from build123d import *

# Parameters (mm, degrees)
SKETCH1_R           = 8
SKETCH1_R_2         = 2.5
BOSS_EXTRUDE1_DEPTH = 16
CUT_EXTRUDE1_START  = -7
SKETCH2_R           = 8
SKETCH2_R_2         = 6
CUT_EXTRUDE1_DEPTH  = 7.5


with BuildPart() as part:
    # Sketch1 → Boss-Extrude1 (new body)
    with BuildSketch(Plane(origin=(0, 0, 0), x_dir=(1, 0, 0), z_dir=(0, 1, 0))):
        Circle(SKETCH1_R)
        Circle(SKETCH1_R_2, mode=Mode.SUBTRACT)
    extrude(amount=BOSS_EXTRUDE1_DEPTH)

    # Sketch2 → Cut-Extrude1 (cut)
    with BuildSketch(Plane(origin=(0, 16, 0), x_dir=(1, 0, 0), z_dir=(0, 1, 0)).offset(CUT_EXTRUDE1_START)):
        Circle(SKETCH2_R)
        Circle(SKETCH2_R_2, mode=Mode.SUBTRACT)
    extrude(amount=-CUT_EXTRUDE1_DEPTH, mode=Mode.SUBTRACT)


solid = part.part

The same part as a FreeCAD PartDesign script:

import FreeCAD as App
import Part
import Sketcher
from FreeCAD import Vector
Q = App.Units.Quantity

doc = App.newDocument("Part")
params = doc.addObject("Spreadsheet::Sheet", "Params")
for row, (alias, value) in enumerate([
    ("sketch1_diameter", "16 mm"),
    ("sketch1_diameter2", "5 mm"),
    ("pad1_length", "16 mm"),
    ("sketch2_diameter", "16 mm"),
    ("sketch2_diameter2", "12 mm"),
    ("pocket1_length", "7.5 mm"),
], start=1):
    params.set(f"A{row}", alias)
    params.set(f"B{row}", "=" + value)
    params.setAlias(f"B{row}", alias)

body = doc.addObject("PartDesign::Body", "Body")

# Sketch on XZ plane
sketch1 = body.newObject("Sketcher::SketchObject", "Sketch")
sketch1.AttachmentSupport = (doc.getObject("XZ_Plane"), [""])
sketch1.MapMode = "FlatFace"
sketch1.addGeometry(Part.Circle(Vector(0, 0, 0), Vector(0, 0, 1), 8), False)
sketch1.addGeometry(Part.Circle(Vector(0, 0, 0), Vector(0, 0, 1), 2.5), False)
sketch1.addConstraint(Sketcher.Constraint("Coincident", 0, 3, -1, 1))
sketch1.addConstraint(Sketcher.Constraint("Coincident", 1, 3, -1, 1))
sketch1.addConstraint(Sketcher.Constraint("Diameter", 0, Q("16 mm")))
sketch1.addConstraint(Sketcher.Constraint("Diameter", 1, Q("5 mm")))
sketch1.setExpression("Constraints[2]", "Params.sketch1_diameter")
sketch1.setExpression("Constraints[3]", "Params.sketch1_diameter2")
pad1 = body.newObject("PartDesign::Pad", "Pad")
pad1.Profile = sketch1
pad1.setExpression("Length", "Params.pad1_length")
pad1.Reversed = True

# Sketch on XZ plane
sketch2 = body.newObject("Sketcher::SketchObject", "Sketch001")
sketch2.AttachmentSupport = (doc.getObject("XZ_Plane"), [""])
sketch2.MapMode = "FlatFace"
sketch2.AttachmentOffset = App.Placement(Vector(0, 0, -9), App.Rotation())
sketch2.addGeometry(Part.Circle(Vector(0, 0, 0), Vector(0, 0, 1), 8), False)
sketch2.addGeometry(Part.Circle(Vector(0, 0, 0), Vector(0, 0, 1), 6), False)
sketch2.addConstraint(Sketcher.Constraint("Coincident", 0, 3, -1, 1))
sketch2.addConstraint(Sketcher.Constraint("Coincident", 1, 3, -1, 1))
sketch2.addConstraint(Sketcher.Constraint("Diameter", 0, Q("16 mm")))
sketch2.addConstraint(Sketcher.Constraint("Diameter", 1, Q("12 mm")))
sketch2.setExpression("Constraints[2]", "Params.sketch2_diameter")
sketch2.setExpression("Constraints[3]", "Params.sketch2_diameter2")
pocket1 = body.newObject("PartDesign::Pocket", "Pocket")
pocket1.Profile = sketch2
pocket1.setExpression("Length", "Params.pocket1_length")
pocket1.Reversed = True

doc.recompute()
